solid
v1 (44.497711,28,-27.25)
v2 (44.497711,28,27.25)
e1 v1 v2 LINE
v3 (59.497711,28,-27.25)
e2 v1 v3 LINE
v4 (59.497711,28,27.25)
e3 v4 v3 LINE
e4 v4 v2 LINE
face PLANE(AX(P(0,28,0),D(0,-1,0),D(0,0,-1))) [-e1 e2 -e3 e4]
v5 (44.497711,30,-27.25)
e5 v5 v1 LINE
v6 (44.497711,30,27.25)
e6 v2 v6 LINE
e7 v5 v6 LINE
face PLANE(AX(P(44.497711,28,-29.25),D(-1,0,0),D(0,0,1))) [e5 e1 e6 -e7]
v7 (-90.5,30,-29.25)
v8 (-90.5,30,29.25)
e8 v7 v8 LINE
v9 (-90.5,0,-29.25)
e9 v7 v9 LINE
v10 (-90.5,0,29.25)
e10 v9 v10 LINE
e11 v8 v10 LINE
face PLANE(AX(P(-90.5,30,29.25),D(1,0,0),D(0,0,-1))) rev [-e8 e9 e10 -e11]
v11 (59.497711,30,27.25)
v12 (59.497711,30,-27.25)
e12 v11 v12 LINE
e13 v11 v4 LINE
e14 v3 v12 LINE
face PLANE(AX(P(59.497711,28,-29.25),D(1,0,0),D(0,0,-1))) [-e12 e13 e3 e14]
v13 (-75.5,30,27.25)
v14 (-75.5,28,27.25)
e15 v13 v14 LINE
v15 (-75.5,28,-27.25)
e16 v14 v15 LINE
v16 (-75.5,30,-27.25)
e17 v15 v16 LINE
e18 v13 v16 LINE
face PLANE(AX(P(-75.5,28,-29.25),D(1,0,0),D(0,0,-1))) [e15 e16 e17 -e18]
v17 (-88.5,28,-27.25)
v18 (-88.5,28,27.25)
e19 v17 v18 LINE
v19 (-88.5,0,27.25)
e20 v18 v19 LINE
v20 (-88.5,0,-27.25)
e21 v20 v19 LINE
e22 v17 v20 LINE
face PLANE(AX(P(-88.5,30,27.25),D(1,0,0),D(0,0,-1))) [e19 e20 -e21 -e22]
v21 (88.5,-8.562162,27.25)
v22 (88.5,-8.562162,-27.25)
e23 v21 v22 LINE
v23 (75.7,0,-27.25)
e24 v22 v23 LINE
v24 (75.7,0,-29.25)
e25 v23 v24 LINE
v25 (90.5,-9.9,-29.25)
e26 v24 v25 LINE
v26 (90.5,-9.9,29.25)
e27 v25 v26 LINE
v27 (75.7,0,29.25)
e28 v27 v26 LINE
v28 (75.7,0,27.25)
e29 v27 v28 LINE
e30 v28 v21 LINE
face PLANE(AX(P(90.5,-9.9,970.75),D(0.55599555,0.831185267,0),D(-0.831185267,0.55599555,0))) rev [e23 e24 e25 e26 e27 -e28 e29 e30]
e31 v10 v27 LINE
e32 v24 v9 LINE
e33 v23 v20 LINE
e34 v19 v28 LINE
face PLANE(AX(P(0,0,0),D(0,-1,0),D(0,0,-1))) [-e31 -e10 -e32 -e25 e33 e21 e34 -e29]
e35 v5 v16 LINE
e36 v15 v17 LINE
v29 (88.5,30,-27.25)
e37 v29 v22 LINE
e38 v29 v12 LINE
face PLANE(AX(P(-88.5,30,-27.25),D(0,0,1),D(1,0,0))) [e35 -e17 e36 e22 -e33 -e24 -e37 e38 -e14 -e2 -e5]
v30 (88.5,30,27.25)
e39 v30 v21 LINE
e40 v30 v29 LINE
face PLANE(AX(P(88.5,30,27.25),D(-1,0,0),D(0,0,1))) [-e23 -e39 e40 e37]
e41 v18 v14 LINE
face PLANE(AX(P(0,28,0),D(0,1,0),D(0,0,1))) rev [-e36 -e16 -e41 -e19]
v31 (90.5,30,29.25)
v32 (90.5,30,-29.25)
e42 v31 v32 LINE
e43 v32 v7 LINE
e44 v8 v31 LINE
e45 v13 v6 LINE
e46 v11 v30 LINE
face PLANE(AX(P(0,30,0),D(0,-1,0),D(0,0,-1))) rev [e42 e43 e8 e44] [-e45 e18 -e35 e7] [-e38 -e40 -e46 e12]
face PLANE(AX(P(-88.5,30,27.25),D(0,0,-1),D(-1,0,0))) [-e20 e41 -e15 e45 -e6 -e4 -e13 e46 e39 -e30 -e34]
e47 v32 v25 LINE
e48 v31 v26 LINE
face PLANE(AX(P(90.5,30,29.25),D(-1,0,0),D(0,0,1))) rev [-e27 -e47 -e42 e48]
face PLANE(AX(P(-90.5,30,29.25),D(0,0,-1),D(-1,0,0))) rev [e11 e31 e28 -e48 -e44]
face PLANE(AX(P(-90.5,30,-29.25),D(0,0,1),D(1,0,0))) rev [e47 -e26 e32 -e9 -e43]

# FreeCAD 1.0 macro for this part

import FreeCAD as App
import Part
import Sketcher

doc = App.newDocument("Part")
body = doc.addObject("PartDesign::Body", "Body")

# Sketch on XZ plane
sketch1 = doc.addObject("Sketcher::SketchObject", "Sketch")
body.addObject(sketch1)
sketch1.AttachmentSupport = (doc.XZ_Plane, [""])
sketch1.MapMode = "FlatFace"
sketch1.addGeometry(Part.LineSegment(App.Vector(-90, -29, 0), App.Vector(-90, 29, 0)), False)
sketch1.addGeometry(Part.LineSegment(App.Vector(-90, 29, 0), App.Vector(90, 29, 0)), False)
sketch1.addGeometry(Part.LineSegment(App.Vector(90, 29, 0), App.Vector(90, -29, 0)), False)
sketch1.addGeometry(Part.LineSegment(App.Vector(90, -29, 0), App.Vector(-90, -29, 0)), False)
sketch1.addGeometry(Part.LineSegment(App.Vector(88, 27, 0), App.Vector(-88, 27, 0)), False)
sketch1.addGeometry(Part.LineSegment(App.Vector(-88, 27, 0), App.Vector(-88, -27, 0)), False)
sketch1.addGeometry(Part.LineSegment(App.Vector(-88, -27, 0), App.Vector(88, -27, 0)), False)
sketch1.addGeometry(Part.LineSegment(App.Vector(88, -27, 0), App.Vector(88, 27, 0)), False)
sketch1.addConstraint(Sketcher.Constraint("Coincident", 0, 2, 1, 1))
sketch1.addConstraint(Sketcher.Constraint("Coincident", 1, 2, 2, 1))
sketch1.addConstraint(Sketcher.Constraint("Coincident", 2, 2, 3, 1))
sketch1.addConstraint(Sketcher.Constraint("Coincident", 3, 2, 0, 1))
sketch1.addConstraint(Sketcher.Constraint("Coincident", 4, 2, 5, 1))
sketch1.addConstraint(Sketcher.Constraint("Coincident", 5, 2, 6, 1))
sketch1.addConstraint(Sketcher.Constraint("Coincident", 6, 2, 7, 1))
sketch1.addConstraint(Sketcher.Constraint("Coincident", 7, 2, 4, 1))
sketch1.addConstraint(Sketcher.Constraint("Vertical", 0))
sketch1.addConstraint(Sketcher.Constraint("Horizontal", 1))
sketch1.addConstraint(Sketcher.Constraint("Vertical", 2))
sketch1.addConstraint(Sketcher.Constraint("Horizontal", 3))
sketch1.addConstraint(Sketcher.Constraint("Horizontal", 4))
sketch1.addConstraint(Sketcher.Constraint("Vertical", 5))
sketch1.addConstraint(Sketcher.Constraint("Horizontal", 6))
sketch1.addConstraint(Sketcher.Constraint("Vertical", 7))
sketch1.addConstraint(Sketcher.Constraint("Symmetric", 0, 2, 2, 2, -1, 1))
sketch1.addConstraint(Sketcher.Constraint("Symmetric", 4, 2, 6, 2, -1, 1))
sketch1.addConstraint(Sketcher.Constraint("DistanceX", 1, 1, 1, 2, 181.0))
sketch1.addConstraint(Sketcher.Constraint("DistanceX", 4, 2, 4, 1, 177.0))
sketch1.addConstraint(Sketcher.Constraint("DistanceY", 0, 1, 0, 2, 58.5))
sketch1.addConstraint(Sketcher.Constraint("DistanceY", 5, 2, 5, 1, 54.5))
pad1 = doc.addObject("PartDesign::Pad", "Pad")
body.addObject(pad1)
pad1.Profile = sketch1
pad1.Length = 30
pad1.Reversed = True

# Sketch on XZ plane
sketch2 = doc.addObject("Sketcher::SketchObject", "Sketch001")
body.addObject(sketch2)
sketch2.AttachmentSupport = (doc.XZ_Plane, [""])
sketch2.MapMode = "FlatFace"
sketch2.addGeometry(Part.LineSegment(App.Vector(76, 29, 0), App.Vector(76, -29, 0)), False)
sketch2.addGeometry(Part.LineSegment(App.Vector(76, -29, 0), App.Vector(90, -29, 0)), False)
sketch2.addGeometry(Part.LineSegment(App.Vector(90, -29, 0), App.Vector(90, 29, 0)), False)
sketch2.addGeometry(Part.LineSegment(App.Vector(90, 29, 0), App.Vector(76, 29, 0)), False)
sketch2.addConstraint(Sketcher.Constraint("Coincident", 0, 2, 1, 1))
sketch2.addConstraint(Sketcher.Constraint("Coincident", 1, 2, 2, 1))
sketch2.addConstraint(Sketcher.Constraint("Coincident", 2, 2, 3, 1))
sketch2.addConstraint(Sketcher.Constraint("Coincident", 3, 2, 0, 1))
sketch2.addConstraint(Sketcher.Constraint("Vertical", 0))
sketch2.addConstraint(Sketcher.Constraint("Horizontal", 1))
sketch2.addConstraint(Sketcher.Constraint("Vertical", 2))
sketch2.addConstraint(Sketcher.Constraint("Horizontal", 3))
sketch2.addConstraint(Sketcher.Constraint("DistanceX", 1, 1, 1, 2, 14.8))
sketch2.addConstraint(Sketcher.Constraint("DistanceY", 0, 2, 0, 1, 58.5))
sketch2.addConstraint(Sketcher.Constraint("DistanceX", -1, 1, 0, 2, 75.7))
sketch2.addConstraint(Sketcher.Constraint("DistanceY", 0, 2, -1, 1, 29.25))
pad2 = doc.addObject("PartDesign::Pad", "Pad001")
body.addObject(pad2)
pad2.Profile = sketch2
pad2.Length = 9.9

# Sketch on XZ plane
sketch3 = doc.addObject("Sketcher::SketchObject", "Sketch002")
body.addObject(sketch3)
sketch3.AttachmentSupport = (doc.XZ_Plane, [""])
sketch3.MapMode = "FlatFace"
sketch3.addGeometry(Part.LineSegment(App.Vector(76, -27, 0), App.Vector(76, 27, 0)), False)
sketch3.addGeometry(Part.LineSegment(App.Vector(76, 27, 0), App.Vector(88, 27, 0)), False)
sketch3.addGeometry(Part.LineSegment(App.Vector(88, 27, 0), App.Vector(88, -27, 0)), False)
sketch3.addGeometry(Part.LineSegment(App.Vector(88, -27, 0), App.Vector(76, -27, 0)), False)
sketch3.addConstraint(Sketcher.Constraint("Coincident", 0, 2, 1, 1))
sketch3.addConstraint(Sketcher.Constraint("Coincident", 1, 2, 2, 1))
sketch3.addConstraint(Sketcher.Constraint("Coincident", 2, 2, 3, 1))
sketch3.addConstraint(Sketcher.Constraint("Coincident", 3, 2, 0, 1))
sketch3.addConstraint(Sketcher.Constraint("Vertical", 0))
sketch3.addConstraint(Sketcher.Constraint("Horizontal", 1))
sketch3.addConstraint(Sketcher.Constraint("Vertical", 2))
sketch3.addConstraint(Sketcher.Constraint("Horizontal", 3))
sketch3.addConstraint(Sketcher.Constraint("DistanceX", 1, 1, 1, 2, 12.8))
sketch3.addConstraint(Sketcher.Constraint("DistanceY", 0, 1, 0, 2, 54.5))
sketch3.addConstraint(Sketcher.Constraint("DistanceX", -1, 1, 0, 2, 75.7))
sketch3.addConstraint(Sketcher.Constraint("DistanceY", -1, 1, 0, 2, 27.25))
pocket1 = doc.addObject("PartDesign::Pocket", "Pocket")
body.addObject(pocket1)
pocket1.Profile = sketch3
pocket1.Length = 9.9
pocket1.Reversed = True

# Sketch on XY plane
sketch4 = doc.addObject("Sketcher::SketchObject", "Sketch003")
body.addObject(sketch4)
sketch4.AttachmentSupport = (doc.XY_Plane, [""])
sketch4.MapMode = "FlatFace"
sketch4.AttachmentOffset = App.Placement(App.Vector(0, 0, -29.25), App.Rotation())
sketch4.addGeometry(Part.LineSegment(App.Vector(76, 0, 0), App.Vector(90, -10, 0)), False)
sketch4.addGeometry(Part.LineSegment(App.Vector(90, -10, 0), App.Vector(76, -10, 0)), False)
sketch4.addGeometry(Part.LineSegment(App.Vector(76, -10, 0), App.Vector(76, 0, 0)), False)
sketch4.addConstraint(Sketcher.Constraint("Coincident", 0, 2, 1, 1))
sketch4.addConstraint(Sketcher.Constraint("Coincident", 1, 2, 2, 1))
sketch4.addConstraint(Sketcher.Constraint("Coincident", 2, 2, 0, 1))
sketch4.addConstraint(Sketcher.Constraint("Horizontal", 1))
sketch4.addConstraint(Sketcher.Constraint("Vertical", 2))
sketch4.addConstraint(Sketcher.Constraint("PointOnObject", 2, 2, -1))
sketch4.addConstraint(Sketcher.Constraint("DistanceX", 1, 2, 1, 1, 14.8))
sketch4.addConstraint(Sketcher.Constraint("DistanceY", 2, 1, 2, 2, 9.9))
sketch4.addConstraint(Sketcher.Constraint("DistanceX", -1, 1, 0, 2, 90.5))
pocket2 = doc.addObject("PartDesign::Pocket", "Pocket001")
body.addObject(pocket2)
pocket2.Profile = sketch4
pocket2.Length = 1000
pocket2.Reversed = True

# Sketch on XZ plane
sketch5 = doc.addObject("Sketcher::SketchObject", "Sketch004")
body.addObject(sketch5)
sketch5.AttachmentSupport = (doc.XZ_Plane, [""])
sketch5.MapMode = "FlatFace"
sketch5.AttachmentOffset = App.Placement(App.Vector(0, 0, -30), App.Rotation())
sketch5.addGeometry(Part.LineSegment(App.Vector(-90, -29, 0), App.Vector(-90, 29, 0)), False)
sketch5.addGeometry(Part.LineSegment(App.Vector(-90, 29, 0), App.Vector(-76, 29, 0)), False)
sketch5.addGeometry(Part.LineSegment(App.Vector(-76, 29, 0), App.Vector(-76, -29, 0)), False)
sketch5.addGeometry(Part.LineSegment(App.Vector(-76, -29, 0), App.Vector(-90, -29, 0)), False)
sketch5.addGeometry(Part.LineSegment(App.Vector(44, -29, 0), App.Vector(44, 29, 0)), False)
sketch5.addGeometry(Part.LineSegment(App.Vector(44, 29, 0), App.Vector(59, 29, 0)), False)
sketch5.addGeometry(Part.LineSegment(App.Vector(59, 29, 0), App.Vector(59, -29, 0)), False)
sketch5.addGeometry(Part.LineSegment(App.Vector(59, -29, 0), App.Vector(44, -29, 0)), False)
sketch5.addConstraint(Sketcher.Constraint("Coincident", 0, 2, 1, 1))
sketch5.addConstraint(Sketcher.Constraint("Coincident", 1, 2, 2, 1))
sketch5.addConstraint(Sketcher.Constraint("Coincident", 2, 2, 3, 1))
sketch5.addConstraint(Sketcher.Constraint("Coincident", 3, 2, 0, 1))
sketch5.addConstraint(Sketcher.Constraint("Coincident", 4, 2, 5, 1))
sketch5.addConstraint(Sketcher.Constraint("Coincident", 5, 2, 6, 1))
sketch5.addConstraint(Sketcher.Constraint("Coincident", 6, 2, 7, 1))
sketch5.addConstraint(Sketcher.Constraint("Coincident", 7, 2, 4, 1))
sketch5.addConstraint(Sketcher.Constraint("Vertical", 0))
sketch5.addConstraint(Sketcher.Constraint("Horizontal", 1))
sketch5.addConstraint(Sketcher.Constraint("Vertical", 2))
sketch5.addConstraint(Sketcher.Constraint("Horizontal", 3))
sketch5.addConstraint(Sketcher.Constraint("Vertical", 4))
sketch5.addConstraint(Sketcher.Constraint("Horizontal", 5))
sketch5.addConstraint(Sketcher.Constraint("Vertical", 6))
sketch5.addConstraint(Sketcher.Constraint("Horizontal", 7))
sketch5.addConstraint(Sketcher.Constraint("Horizontal", 1, 2, 4, 2))
sketch5.addConstraint(Sketcher.Constraint("Horizontal", 3, 2, 6, 2))
sketch5.addConstraint(Sketcher.Constraint("Equal", 3, 5))
sketch5.addConstraint(Sketcher.Constraint("DistanceX", 1, 1, 1, 2, 15.0))
sketch5.addConstraint(Sketcher.Constraint("DistanceY", 0, 1, 0, 2, 58.5))
sketch5.addConstraint(Sketcher.Constraint("DistanceX", 0, 2, -1, 1, 90.5))
sketch5.addConstraint(Sketcher.Constraint("DistanceY", -1, 1, 0, 2, 29.25))
sketch5.addConstraint(Sketcher.Constraint("DistanceX", -1, 1, 4, 2, 44.497711))
pad3 = doc.addObject("PartDesign::Pad", "Pad002")
body.addObject(pad3)
pad3.Profile = sketch5
pad3.Length = 2

doc.recompute()
